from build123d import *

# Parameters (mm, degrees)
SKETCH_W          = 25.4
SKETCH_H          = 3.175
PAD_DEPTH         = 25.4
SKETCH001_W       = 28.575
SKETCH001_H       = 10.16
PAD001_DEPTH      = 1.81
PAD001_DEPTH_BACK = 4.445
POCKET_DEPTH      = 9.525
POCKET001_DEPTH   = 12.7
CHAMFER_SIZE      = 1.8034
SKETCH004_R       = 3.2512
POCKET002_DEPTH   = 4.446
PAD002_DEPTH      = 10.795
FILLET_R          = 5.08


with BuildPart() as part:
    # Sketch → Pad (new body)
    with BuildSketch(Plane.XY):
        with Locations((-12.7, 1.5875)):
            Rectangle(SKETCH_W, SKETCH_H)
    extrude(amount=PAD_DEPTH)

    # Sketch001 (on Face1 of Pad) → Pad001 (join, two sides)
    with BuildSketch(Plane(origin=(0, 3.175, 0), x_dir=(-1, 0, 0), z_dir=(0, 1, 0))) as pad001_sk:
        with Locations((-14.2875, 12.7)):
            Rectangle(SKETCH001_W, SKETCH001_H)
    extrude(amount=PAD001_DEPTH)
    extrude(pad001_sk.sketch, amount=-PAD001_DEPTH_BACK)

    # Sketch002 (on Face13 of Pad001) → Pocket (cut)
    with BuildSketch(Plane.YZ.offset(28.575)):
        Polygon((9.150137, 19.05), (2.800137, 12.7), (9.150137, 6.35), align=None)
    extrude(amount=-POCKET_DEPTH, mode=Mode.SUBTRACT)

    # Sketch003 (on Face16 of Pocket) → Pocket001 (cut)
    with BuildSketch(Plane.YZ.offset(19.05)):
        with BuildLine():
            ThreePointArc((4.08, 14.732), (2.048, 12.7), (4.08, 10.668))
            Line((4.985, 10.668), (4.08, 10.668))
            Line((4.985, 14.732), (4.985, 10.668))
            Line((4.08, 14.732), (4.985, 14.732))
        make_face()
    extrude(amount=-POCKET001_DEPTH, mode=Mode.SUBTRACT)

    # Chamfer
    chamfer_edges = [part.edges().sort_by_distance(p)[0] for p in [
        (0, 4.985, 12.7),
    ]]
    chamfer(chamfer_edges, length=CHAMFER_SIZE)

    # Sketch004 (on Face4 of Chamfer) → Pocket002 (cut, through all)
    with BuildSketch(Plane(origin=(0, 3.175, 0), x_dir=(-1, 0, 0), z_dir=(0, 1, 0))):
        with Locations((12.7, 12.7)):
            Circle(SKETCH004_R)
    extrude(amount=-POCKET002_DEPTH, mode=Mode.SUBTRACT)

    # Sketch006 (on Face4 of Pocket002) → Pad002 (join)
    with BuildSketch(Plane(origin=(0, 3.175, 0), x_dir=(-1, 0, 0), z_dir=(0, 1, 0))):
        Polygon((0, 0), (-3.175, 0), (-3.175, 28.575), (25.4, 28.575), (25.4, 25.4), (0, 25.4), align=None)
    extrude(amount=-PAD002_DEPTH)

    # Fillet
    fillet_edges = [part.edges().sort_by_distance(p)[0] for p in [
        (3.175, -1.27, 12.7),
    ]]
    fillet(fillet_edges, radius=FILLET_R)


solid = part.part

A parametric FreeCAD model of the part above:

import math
import FreeCAD as App
import Part
import Sketcher

V = App.Vector
Q = App.Units.Quantity


def edges_at(feature, points):
    """Names of the edges that pass closest to the given points."""
    edges = feature.Shape.Edges
    near = lambda p: min(range(len(edges)), key=lambda i: edges[i].distToShape(Part.Vertex(*p))[0])
    return sorted({f"Edge{near(p) + 1}" for p in points})

doc = App.newDocument("Part")
body = doc.addObject("PartDesign::Body", "Body")

# Sketch on XY plane
sketch1 = body.newObject("Sketcher::SketchObject", "Sketch")
sketch1.AttachmentSupport = (doc.getObject("XY_Plane"), [""])
sketch1.MapMode = "FlatFace"
sketch1.addGeometry(Part.LineSegment(V(-25.4, 3.2, 0), V(-25.4, 0, 0)), False)
sketch1.addGeometry(Part.LineSegment(V(-25.4, 0, 0), V(0, 0, 0)), False)
sketch1.addGeometry(Part.LineSegment(V(0, 0, 0), V(0, 3.2, 0)), False)
sketch1.addGeometry(Part.LineSegment(V(0, 3.2, 0), V(-25.4, 3.2, 0)), False)
sketch1.addConstraint(Sketcher.Constraint("Coincident", 0, 2, 1, 1))
sketch1.addConstraint(Sketcher.Constraint("Coincident", 1, 2, 2, 1))
sketch1.addConstraint(Sketcher.Constraint("Coincident", 2, 2, 3, 1))
sketch1.addConstraint(Sketcher.Constraint("Coincident", 3, 2, 0, 1))
sketch1.addConstraint(Sketcher.Constraint("Vertical", 0))
sketch1.addConstraint(Sketcher.Constraint("Horizontal", 1))
sketch1.addConstraint(Sketcher.Constraint("Vertical", 2))
sketch1.addConstraint(Sketcher.Constraint("Horizontal", 3))
sketch1.addConstraint(Sketcher.Constraint("Coincident", 1, 2, -1, 1))
sketch1.addConstraint(Sketcher.Constraint("DistanceX", 1, 1, 1, 2, Q("1 in")))
sketch1.addConstraint(Sketcher.Constraint("DistanceY", 0, 2, 0, 1, Q("0.125 in")))
pad1 = body.newObject("PartDesign::Pad", "Pad")
pad1.Profile = sketch1
pad1.Length = Q("1 in")

# Sketch on XZ plane
sketch2 = body.newObject("Sketcher::SketchObject", "Sketch001")
sketch2.AttachmentSupport = (doc.getObject("XZ_Plane"), [""])
sketch2.MapMode = "FlatFace"
sketch2.AttachmentOffset = App.Placement(V(0, 0, -0.125 * 25.4), App.Rotation())
sketch2.addGeometry(Part.LineSegment(V(29, 18, 0), V(29, 8, 0)), False)
sketch2.addGeometry(Part.LineSegment(V(29, 8, 0), V(0, 8, 0)), False)
sketch2.addGeometry(Part.LineSegment(V(0, 8, 0), V(0, 18, 0)), False)
sketch2.addGeometry(Part.LineSegment(V(0, 18, 0), V(29, 18, 0)), False)
sketch2.addConstraint(Sketcher.Constraint("Coincident", 0, 2, 1, 1))
sketch2.addConstraint(Sketcher.Constraint("Coincident", 1, 2, 2, 1))
sketch2.addConstraint(Sketcher.Constraint("Coincident", 2, 2, 3, 1))
sketch2.addConstraint(Sketcher.Constraint("Coincident", 3, 2, 0, 1))
sketch2.addConstraint(Sketcher.Constraint("Vertical", 0))
sketch2.addConstraint(Sketcher.Constraint("Horizontal", 1))
sketch2.addConstraint(Sketcher.Constraint("Vertical", 2))
sketch2.addConstraint(Sketcher.Constraint("Horizontal", 3))
sketch2.addConstraint(Sketcher.Constraint("PointOnObject", 1, 2, -2))
sketch2.addConstraint(Sketcher.Constraint("DistanceY", 0, 2, 0, 1, Q("0.4 in")))
sketch2.addConstraint(Sketcher.Constraint("DistanceY", -1, 1, 0, 2, Q("0.3 in")))
sketch2.addConstraint(Sketcher.Constraint("DistanceX", 1, 2, 1, 1, Q("1.125 in")))
pad2 = body.newObject("PartDesign::Pad", "Pad001")
pad2.Profile = sketch2
pad2.Type = "TwoLengths"
pad2.Length = 1.81
pad2.Length2 = Q("0.175 in")
pad2.Reversed = True

# Sketch on YZ plane
sketch3 = body.newObject("Sketcher::SketchObject", "Sketch002")
sketch3.AttachmentSupport = (doc.getObject("YZ_Plane"), [""])
sketch3.MapMode = "FlatFace"
sketch3.AttachmentOffset = App.Placement(V(0, 0, 1.125 * 25.4), App.Rotation())
sketch3.addGeometry(Part.LineSegment(V(9, 19, 0), V(3, 13, 0)), False)
sketch3.addGeometry(Part.LineSegment(V(3, 13, 0), V(9, 6, 0)), False)
sketch3.addGeometry(Part.LineSegment(V(9, 6, 0), V(9, 19, 0)), False)
sketch3.addConstraint(Sketcher.Constraint("Coincident", 0, 2, 1, 1))
sketch3.addConstraint(Sketcher.Constraint("Coincident", 1, 2, 2, 1))
sketch3.addConstraint(Sketcher.Constraint("Coincident", 2, 2, 0, 1))
sketch3.addConstraint(Sketcher.Constraint("Vertical", 2))
sketch3.addConstraint(Sketcher.Constraint("Perpendicular", 0, 1))
sketch3.addConstraint(Sketcher.Constraint("Equal", 0, 1))
sketch3.addConstraint(Sketcher.Constraint("DistanceY", 2, 1, 2, 2, Q("0.5 in")))
sketch3.addConstraint(Sketcher.Constraint("DistanceY", -1, 1, 0, 2, Q("0.5 in")))
sketch3.addConstraint(Sketcher.Constraint("DistanceX", -1, 1, 0, 2, 2.800137))
pocket1 = body.newObject("PartDesign::Pocket", "Pocket")
pocket1.Profile = sketch3
pocket1.Length = Q("0.375 in")

# Sketch on YZ plane
sketch4 = body.newObject("Sketcher::SketchObject", "Sketch003")
sketch4.AttachmentSupport = (doc.getObject("YZ_Plane"), [""])
sketch4.MapMode = "FlatFace"
sketch4.AttachmentOffset = App.Placement(V(0, 0, 0.75 * 25.4), App.Rotation())
sketch4.addGeometry(Part.ArcOfCircle(Part.Circle(V(4.1, 12.7, 0), V(0, 0, 1), 2), math.radians(90), math.radians(270)), False)
sketch4.addGeometry(Part.LineSegment(V(4.1, 10.7, 0), V(5, 10.7, 0)), False)
sketch4.addGeometry(Part.LineSegment(V(5, 10.7, 0), V(5, 14.7, 0)), False)
sketch4.addGeometry(Part.LineSegment(V(5, 14.7, 0), V(4.1, 14.7, 0)), False)
sketch4.addConstraint(Sketcher.Constraint("Tangent", 0, 2, 1, 1))
sketch4.addConstraint(Sketcher.Constraint("Coincident", 1, 2, 2, 1))
sketch4.addConstraint(Sketcher.Constraint("Coincident", 2, 2, 3, 1))
sketch4.addConstraint(Sketcher.Constraint("Tangent", 3, 2, 0, 1))
sketch4.addConstraint(Sketcher.Constraint("Horizontal", 1))
sketch4.addConstraint(Sketcher.Constraint("Vertical", 2))
sketch4.addConstraint(Sketcher.Constraint("Horizontal", 3))
sketch4.addConstraint(Sketcher.Constraint("Radius", 0, Q("0.08 in")))
sketch4.addConstraint(Sketcher.Constraint("DistanceY", -1, 1, 0, 3, Q("0.5 in")))
sketch4.addConstraint(Sketcher.Constraint("DistanceX", 1, 1, 1, 2, 0.905))
sketch4.addConstraint(Sketcher.Constraint("DistanceX", -1, 1, 0, 3, 4.08))
pocket2 = body.newObject("PartDesign::Pocket", "Pocket001")
pocket2.Profile = sketch4
pocket2.Length = Q("0.5 in")
doc.recompute()

chamfer = body.newObject("PartDesign::Chamfer", "Chamfer")
chamfer.Base = (pocket2, edges_at(pocket2, [(0, 4.985, 12.7)]))
chamfer.Size = Q("0.071 in")

# Sketch on XZ plane
sketch5 = body.newObject("Sketcher::SketchObject", "Sketch004")
sketch5.AttachmentSupport = (doc.getObject("XZ_Plane"), [""])
sketch5.MapMode = "FlatFace"
sketch5.AttachmentOffset = App.Placement(V(0, 0, -0.125 * 25.4), App.Rotation())
sketch5.addGeometry(Part.Circle(V(-12.7, 12.7, 0), V(0, 0, 1), 3.3), False)
sketch5.addConstraint(Sketcher.Constraint("Diameter", 0, Q("0.256 in")))
sketch5.addConstraint(Sketcher.Constraint("DistanceX", 0, 3, -1, 1, Q("0.5 in")))
sketch5.addConstraint(Sketcher.Constraint("DistanceY", -1, 1, 0, 3, Q("0.5 in")))
pocket3 = body.newObject("PartDesign::Pocket", "Pocket002")
pocket3.Profile = sketch5
pocket3.Type = "ThroughAll"
pocket3.Reversed = True

# Sketch on XZ plane
sketch6 = body.newObject("Sketcher::SketchObject", "Sketch005")
sketch6.AttachmentSupport = (doc.getObject("XZ_Plane"), [""])
sketch6.MapMode = "FlatFace"
sketch6.AttachmentOffset = App.Placement(V(0, 0, -0.125 * 25.4), App.Rotation())
sketch6.addGeometry(Part.LineSegment(V(3.2, 0, 0), V(0, 0, 0)), False)
sketch6.addGeometry(Part.LineSegment(V(0, 0, 0), V(0, 25.4, 0)), False)
sketch6.addGeometry(Part.LineSegment(V(0, 25.4, 0), V(-25.4, 25.4, 0)), False)
sketch6.addGeometry(Part.LineSegment(V(-25.4, 25.4, 0), V(-25.4, 28.6, 0)), False)
sketch6.addGeometry(Part.LineSegment(V(-25.4, 28.6, 0), V(3.2, 28.6, 0)), False)
sketch6.addGeometry(Part.LineSegment(V(3.2, 28.6, 0), V(3.2, 0, 0)), False)
sketch6.addConstraint(Sketcher.Constraint("Coincident", 0, 2, 1, 1))
sketch6.addConstraint(Sketcher.Constraint("Coincident", 1, 2, 2, 1))
sketch6.addConstraint(Sketcher.Constraint("Coincident", 2, 2, 3, 1))
sketch6.addConstraint(Sketcher.Constraint("Coincident", 3, 2, 4, 1))
sketch6.addConstraint(Sketcher.Constraint("Coincident", 4, 2, 5, 1))
sketch6.addConstraint(Sketcher.Constraint("Coincident", 5, 2, 0, 1))
sketch6.addConstraint(Sketcher.Constraint("Horizontal", 0))
sketch6.addConstraint(Sketcher.Constraint("Vertical", 1))
sketch6.addConstraint(Sketcher.Constraint("Horizontal", 2))
sketch6.addConstraint(Sketcher.Constraint("Vertical", 3))
sketch6.addConstraint(Sketcher.Constraint("Horizontal", 4))
sketch6.addConstraint(Sketcher.Constraint("Vertical", 5))
sketch6.addConstraint(Sketcher.Constraint("Coincident", 0, 2, -1, 1))
sketch6.addConstraint(Sketcher.Constraint("Equal", 2, 1))
sketch6.addConstraint(Sketcher.Constraint("Equal", 0, 3))
sketch6.addConstraint(Sketcher.Constraint("DistanceX", 2, 2, 2, 1, Q("1 in")))
sketch6.addConstraint(Sketcher.Constraint("DistanceX", 0, 2, 0, 1, Q("0.125 in")))
pad3 = body.newObject("PartDesign::Pad", "Pad002")
pad3.Profile = sketch6
pad3.Length = Q("0.425 in")
doc.recompute()

fillet = body.newObject("PartDesign::Fillet", "Fillet")
fillet.Base = (pad3, edges_at(pad3, [(3.175, -1.27, 12.7)]))
fillet.Radius = Q("0.2 in")

doc.recompute()
